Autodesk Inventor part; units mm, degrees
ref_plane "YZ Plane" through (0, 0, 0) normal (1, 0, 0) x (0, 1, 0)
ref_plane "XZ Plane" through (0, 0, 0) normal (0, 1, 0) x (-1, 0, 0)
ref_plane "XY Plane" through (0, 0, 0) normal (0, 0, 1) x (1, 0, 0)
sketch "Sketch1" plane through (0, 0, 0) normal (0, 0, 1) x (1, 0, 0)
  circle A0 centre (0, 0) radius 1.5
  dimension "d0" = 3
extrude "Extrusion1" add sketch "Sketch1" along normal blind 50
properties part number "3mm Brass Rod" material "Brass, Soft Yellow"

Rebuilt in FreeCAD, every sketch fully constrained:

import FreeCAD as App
import Part
import Sketcher

V = App.Vector

doc = App.newDocument("Part")
body = doc.addObject("PartDesign::Body", "Body")

sketch1 = doc.addObject("Sketcher::SketchObject", "Sketch")
body.addObject(sketch1)
sketch1.AttachmentSupport = (doc.XY_Plane, [""])
sketch1.MapMode = "FlatFace"
sketch1.addGeometry(Part.Circle(V(0, 0, 0), V(0, 0, 1), 1.5), False)
sketch1.addConstraint([
    Sketcher.Constraint("Coincident", 0, 3, -1, 1),
    Sketcher.Constraint("Diameter", 0, 3.0),
])
pad1 = doc.addObject("PartDesign::Pad", "Pad")
body.addObject(pad1)
pad1.Profile = sketch1
pad1.Length = 50

doc.recompute()
